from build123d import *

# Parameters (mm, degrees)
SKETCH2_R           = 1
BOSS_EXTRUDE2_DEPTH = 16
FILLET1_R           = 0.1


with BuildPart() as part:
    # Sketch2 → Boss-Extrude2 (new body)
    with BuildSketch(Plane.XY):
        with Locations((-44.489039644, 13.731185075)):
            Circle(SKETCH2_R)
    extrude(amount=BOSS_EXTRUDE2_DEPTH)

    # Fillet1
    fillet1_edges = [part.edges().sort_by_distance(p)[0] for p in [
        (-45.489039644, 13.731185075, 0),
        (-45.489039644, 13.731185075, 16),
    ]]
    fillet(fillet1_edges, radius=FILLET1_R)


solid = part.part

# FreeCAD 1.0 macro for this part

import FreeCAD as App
import Part
import Sketcher

V = App.Vector


def edges_at(feature, points):
    """Names of the edges that pass closest to the given points."""
    edges = feature.Shape.Edges
    near = lambda p: min(range(len(edges)), key=lambda i: edges[i].distToShape(Part.Vertex(*p))[0])
    return sorted({f"Edge{near(p) + 1}" for p in points})

doc = App.newDocument("Part")
params = doc.addObject("Spreadsheet::Sheet", "Params")
for row, (alias, value) in enumerate([
    ("sketch1_diameter", "2 mm"),
    ("pad1_length", "16 mm"),
    ("fillet_radius", "0.1 mm"),
], start=1):
    params.set(f"A{row}", alias)
    params.set(f"B{row}", "=" + value)
    params.setAlias(f"B{row}", alias)

body = doc.addObject("PartDesign::Body", "Body")

# Sketch on XY plane
sketch1 = doc.addObject("Sketcher::SketchObject", "Sketch")
body.addObject(sketch1)
sketch1.AttachmentSupport = (doc.XY_Plane, [""])
sketch1.MapMode = "FlatFace"
sketch1.addGeometry(Part.Circle(V(-44.5, 13.7, 0), V(0, 0, 1), 1), False)
sketch1.addConstraint([
    Sketcher.Constraint("Diameter", 0, 2.0),
    Sketcher.Constraint("DistanceX", 0, 3, -1, 1, 44.48904),
    Sketcher.Constraint("DistanceY", -1, 1, 0, 3, 13.731185),
])
sketch1.setExpression("Constraints[0]", "Params.sketch1_diameter")
pad1 = doc.addObject("PartDesign::Pad", "Pad")
body.addObject(pad1)
pad1.Profile = sketch1
pad1.setExpression("Length", "Params.pad1_length")
doc.recompute()

fillet = doc.addObject("PartDesign::Fillet", "Fillet")
body.addObject(fillet)
fillet.Base = (pad1, edges_at(pad1, [(-45.489, 13.731, 0), (-45.489, 13.731, 16)]))
fillet.setExpression("Radius", "Params.fillet_radius")

doc.recompute()
